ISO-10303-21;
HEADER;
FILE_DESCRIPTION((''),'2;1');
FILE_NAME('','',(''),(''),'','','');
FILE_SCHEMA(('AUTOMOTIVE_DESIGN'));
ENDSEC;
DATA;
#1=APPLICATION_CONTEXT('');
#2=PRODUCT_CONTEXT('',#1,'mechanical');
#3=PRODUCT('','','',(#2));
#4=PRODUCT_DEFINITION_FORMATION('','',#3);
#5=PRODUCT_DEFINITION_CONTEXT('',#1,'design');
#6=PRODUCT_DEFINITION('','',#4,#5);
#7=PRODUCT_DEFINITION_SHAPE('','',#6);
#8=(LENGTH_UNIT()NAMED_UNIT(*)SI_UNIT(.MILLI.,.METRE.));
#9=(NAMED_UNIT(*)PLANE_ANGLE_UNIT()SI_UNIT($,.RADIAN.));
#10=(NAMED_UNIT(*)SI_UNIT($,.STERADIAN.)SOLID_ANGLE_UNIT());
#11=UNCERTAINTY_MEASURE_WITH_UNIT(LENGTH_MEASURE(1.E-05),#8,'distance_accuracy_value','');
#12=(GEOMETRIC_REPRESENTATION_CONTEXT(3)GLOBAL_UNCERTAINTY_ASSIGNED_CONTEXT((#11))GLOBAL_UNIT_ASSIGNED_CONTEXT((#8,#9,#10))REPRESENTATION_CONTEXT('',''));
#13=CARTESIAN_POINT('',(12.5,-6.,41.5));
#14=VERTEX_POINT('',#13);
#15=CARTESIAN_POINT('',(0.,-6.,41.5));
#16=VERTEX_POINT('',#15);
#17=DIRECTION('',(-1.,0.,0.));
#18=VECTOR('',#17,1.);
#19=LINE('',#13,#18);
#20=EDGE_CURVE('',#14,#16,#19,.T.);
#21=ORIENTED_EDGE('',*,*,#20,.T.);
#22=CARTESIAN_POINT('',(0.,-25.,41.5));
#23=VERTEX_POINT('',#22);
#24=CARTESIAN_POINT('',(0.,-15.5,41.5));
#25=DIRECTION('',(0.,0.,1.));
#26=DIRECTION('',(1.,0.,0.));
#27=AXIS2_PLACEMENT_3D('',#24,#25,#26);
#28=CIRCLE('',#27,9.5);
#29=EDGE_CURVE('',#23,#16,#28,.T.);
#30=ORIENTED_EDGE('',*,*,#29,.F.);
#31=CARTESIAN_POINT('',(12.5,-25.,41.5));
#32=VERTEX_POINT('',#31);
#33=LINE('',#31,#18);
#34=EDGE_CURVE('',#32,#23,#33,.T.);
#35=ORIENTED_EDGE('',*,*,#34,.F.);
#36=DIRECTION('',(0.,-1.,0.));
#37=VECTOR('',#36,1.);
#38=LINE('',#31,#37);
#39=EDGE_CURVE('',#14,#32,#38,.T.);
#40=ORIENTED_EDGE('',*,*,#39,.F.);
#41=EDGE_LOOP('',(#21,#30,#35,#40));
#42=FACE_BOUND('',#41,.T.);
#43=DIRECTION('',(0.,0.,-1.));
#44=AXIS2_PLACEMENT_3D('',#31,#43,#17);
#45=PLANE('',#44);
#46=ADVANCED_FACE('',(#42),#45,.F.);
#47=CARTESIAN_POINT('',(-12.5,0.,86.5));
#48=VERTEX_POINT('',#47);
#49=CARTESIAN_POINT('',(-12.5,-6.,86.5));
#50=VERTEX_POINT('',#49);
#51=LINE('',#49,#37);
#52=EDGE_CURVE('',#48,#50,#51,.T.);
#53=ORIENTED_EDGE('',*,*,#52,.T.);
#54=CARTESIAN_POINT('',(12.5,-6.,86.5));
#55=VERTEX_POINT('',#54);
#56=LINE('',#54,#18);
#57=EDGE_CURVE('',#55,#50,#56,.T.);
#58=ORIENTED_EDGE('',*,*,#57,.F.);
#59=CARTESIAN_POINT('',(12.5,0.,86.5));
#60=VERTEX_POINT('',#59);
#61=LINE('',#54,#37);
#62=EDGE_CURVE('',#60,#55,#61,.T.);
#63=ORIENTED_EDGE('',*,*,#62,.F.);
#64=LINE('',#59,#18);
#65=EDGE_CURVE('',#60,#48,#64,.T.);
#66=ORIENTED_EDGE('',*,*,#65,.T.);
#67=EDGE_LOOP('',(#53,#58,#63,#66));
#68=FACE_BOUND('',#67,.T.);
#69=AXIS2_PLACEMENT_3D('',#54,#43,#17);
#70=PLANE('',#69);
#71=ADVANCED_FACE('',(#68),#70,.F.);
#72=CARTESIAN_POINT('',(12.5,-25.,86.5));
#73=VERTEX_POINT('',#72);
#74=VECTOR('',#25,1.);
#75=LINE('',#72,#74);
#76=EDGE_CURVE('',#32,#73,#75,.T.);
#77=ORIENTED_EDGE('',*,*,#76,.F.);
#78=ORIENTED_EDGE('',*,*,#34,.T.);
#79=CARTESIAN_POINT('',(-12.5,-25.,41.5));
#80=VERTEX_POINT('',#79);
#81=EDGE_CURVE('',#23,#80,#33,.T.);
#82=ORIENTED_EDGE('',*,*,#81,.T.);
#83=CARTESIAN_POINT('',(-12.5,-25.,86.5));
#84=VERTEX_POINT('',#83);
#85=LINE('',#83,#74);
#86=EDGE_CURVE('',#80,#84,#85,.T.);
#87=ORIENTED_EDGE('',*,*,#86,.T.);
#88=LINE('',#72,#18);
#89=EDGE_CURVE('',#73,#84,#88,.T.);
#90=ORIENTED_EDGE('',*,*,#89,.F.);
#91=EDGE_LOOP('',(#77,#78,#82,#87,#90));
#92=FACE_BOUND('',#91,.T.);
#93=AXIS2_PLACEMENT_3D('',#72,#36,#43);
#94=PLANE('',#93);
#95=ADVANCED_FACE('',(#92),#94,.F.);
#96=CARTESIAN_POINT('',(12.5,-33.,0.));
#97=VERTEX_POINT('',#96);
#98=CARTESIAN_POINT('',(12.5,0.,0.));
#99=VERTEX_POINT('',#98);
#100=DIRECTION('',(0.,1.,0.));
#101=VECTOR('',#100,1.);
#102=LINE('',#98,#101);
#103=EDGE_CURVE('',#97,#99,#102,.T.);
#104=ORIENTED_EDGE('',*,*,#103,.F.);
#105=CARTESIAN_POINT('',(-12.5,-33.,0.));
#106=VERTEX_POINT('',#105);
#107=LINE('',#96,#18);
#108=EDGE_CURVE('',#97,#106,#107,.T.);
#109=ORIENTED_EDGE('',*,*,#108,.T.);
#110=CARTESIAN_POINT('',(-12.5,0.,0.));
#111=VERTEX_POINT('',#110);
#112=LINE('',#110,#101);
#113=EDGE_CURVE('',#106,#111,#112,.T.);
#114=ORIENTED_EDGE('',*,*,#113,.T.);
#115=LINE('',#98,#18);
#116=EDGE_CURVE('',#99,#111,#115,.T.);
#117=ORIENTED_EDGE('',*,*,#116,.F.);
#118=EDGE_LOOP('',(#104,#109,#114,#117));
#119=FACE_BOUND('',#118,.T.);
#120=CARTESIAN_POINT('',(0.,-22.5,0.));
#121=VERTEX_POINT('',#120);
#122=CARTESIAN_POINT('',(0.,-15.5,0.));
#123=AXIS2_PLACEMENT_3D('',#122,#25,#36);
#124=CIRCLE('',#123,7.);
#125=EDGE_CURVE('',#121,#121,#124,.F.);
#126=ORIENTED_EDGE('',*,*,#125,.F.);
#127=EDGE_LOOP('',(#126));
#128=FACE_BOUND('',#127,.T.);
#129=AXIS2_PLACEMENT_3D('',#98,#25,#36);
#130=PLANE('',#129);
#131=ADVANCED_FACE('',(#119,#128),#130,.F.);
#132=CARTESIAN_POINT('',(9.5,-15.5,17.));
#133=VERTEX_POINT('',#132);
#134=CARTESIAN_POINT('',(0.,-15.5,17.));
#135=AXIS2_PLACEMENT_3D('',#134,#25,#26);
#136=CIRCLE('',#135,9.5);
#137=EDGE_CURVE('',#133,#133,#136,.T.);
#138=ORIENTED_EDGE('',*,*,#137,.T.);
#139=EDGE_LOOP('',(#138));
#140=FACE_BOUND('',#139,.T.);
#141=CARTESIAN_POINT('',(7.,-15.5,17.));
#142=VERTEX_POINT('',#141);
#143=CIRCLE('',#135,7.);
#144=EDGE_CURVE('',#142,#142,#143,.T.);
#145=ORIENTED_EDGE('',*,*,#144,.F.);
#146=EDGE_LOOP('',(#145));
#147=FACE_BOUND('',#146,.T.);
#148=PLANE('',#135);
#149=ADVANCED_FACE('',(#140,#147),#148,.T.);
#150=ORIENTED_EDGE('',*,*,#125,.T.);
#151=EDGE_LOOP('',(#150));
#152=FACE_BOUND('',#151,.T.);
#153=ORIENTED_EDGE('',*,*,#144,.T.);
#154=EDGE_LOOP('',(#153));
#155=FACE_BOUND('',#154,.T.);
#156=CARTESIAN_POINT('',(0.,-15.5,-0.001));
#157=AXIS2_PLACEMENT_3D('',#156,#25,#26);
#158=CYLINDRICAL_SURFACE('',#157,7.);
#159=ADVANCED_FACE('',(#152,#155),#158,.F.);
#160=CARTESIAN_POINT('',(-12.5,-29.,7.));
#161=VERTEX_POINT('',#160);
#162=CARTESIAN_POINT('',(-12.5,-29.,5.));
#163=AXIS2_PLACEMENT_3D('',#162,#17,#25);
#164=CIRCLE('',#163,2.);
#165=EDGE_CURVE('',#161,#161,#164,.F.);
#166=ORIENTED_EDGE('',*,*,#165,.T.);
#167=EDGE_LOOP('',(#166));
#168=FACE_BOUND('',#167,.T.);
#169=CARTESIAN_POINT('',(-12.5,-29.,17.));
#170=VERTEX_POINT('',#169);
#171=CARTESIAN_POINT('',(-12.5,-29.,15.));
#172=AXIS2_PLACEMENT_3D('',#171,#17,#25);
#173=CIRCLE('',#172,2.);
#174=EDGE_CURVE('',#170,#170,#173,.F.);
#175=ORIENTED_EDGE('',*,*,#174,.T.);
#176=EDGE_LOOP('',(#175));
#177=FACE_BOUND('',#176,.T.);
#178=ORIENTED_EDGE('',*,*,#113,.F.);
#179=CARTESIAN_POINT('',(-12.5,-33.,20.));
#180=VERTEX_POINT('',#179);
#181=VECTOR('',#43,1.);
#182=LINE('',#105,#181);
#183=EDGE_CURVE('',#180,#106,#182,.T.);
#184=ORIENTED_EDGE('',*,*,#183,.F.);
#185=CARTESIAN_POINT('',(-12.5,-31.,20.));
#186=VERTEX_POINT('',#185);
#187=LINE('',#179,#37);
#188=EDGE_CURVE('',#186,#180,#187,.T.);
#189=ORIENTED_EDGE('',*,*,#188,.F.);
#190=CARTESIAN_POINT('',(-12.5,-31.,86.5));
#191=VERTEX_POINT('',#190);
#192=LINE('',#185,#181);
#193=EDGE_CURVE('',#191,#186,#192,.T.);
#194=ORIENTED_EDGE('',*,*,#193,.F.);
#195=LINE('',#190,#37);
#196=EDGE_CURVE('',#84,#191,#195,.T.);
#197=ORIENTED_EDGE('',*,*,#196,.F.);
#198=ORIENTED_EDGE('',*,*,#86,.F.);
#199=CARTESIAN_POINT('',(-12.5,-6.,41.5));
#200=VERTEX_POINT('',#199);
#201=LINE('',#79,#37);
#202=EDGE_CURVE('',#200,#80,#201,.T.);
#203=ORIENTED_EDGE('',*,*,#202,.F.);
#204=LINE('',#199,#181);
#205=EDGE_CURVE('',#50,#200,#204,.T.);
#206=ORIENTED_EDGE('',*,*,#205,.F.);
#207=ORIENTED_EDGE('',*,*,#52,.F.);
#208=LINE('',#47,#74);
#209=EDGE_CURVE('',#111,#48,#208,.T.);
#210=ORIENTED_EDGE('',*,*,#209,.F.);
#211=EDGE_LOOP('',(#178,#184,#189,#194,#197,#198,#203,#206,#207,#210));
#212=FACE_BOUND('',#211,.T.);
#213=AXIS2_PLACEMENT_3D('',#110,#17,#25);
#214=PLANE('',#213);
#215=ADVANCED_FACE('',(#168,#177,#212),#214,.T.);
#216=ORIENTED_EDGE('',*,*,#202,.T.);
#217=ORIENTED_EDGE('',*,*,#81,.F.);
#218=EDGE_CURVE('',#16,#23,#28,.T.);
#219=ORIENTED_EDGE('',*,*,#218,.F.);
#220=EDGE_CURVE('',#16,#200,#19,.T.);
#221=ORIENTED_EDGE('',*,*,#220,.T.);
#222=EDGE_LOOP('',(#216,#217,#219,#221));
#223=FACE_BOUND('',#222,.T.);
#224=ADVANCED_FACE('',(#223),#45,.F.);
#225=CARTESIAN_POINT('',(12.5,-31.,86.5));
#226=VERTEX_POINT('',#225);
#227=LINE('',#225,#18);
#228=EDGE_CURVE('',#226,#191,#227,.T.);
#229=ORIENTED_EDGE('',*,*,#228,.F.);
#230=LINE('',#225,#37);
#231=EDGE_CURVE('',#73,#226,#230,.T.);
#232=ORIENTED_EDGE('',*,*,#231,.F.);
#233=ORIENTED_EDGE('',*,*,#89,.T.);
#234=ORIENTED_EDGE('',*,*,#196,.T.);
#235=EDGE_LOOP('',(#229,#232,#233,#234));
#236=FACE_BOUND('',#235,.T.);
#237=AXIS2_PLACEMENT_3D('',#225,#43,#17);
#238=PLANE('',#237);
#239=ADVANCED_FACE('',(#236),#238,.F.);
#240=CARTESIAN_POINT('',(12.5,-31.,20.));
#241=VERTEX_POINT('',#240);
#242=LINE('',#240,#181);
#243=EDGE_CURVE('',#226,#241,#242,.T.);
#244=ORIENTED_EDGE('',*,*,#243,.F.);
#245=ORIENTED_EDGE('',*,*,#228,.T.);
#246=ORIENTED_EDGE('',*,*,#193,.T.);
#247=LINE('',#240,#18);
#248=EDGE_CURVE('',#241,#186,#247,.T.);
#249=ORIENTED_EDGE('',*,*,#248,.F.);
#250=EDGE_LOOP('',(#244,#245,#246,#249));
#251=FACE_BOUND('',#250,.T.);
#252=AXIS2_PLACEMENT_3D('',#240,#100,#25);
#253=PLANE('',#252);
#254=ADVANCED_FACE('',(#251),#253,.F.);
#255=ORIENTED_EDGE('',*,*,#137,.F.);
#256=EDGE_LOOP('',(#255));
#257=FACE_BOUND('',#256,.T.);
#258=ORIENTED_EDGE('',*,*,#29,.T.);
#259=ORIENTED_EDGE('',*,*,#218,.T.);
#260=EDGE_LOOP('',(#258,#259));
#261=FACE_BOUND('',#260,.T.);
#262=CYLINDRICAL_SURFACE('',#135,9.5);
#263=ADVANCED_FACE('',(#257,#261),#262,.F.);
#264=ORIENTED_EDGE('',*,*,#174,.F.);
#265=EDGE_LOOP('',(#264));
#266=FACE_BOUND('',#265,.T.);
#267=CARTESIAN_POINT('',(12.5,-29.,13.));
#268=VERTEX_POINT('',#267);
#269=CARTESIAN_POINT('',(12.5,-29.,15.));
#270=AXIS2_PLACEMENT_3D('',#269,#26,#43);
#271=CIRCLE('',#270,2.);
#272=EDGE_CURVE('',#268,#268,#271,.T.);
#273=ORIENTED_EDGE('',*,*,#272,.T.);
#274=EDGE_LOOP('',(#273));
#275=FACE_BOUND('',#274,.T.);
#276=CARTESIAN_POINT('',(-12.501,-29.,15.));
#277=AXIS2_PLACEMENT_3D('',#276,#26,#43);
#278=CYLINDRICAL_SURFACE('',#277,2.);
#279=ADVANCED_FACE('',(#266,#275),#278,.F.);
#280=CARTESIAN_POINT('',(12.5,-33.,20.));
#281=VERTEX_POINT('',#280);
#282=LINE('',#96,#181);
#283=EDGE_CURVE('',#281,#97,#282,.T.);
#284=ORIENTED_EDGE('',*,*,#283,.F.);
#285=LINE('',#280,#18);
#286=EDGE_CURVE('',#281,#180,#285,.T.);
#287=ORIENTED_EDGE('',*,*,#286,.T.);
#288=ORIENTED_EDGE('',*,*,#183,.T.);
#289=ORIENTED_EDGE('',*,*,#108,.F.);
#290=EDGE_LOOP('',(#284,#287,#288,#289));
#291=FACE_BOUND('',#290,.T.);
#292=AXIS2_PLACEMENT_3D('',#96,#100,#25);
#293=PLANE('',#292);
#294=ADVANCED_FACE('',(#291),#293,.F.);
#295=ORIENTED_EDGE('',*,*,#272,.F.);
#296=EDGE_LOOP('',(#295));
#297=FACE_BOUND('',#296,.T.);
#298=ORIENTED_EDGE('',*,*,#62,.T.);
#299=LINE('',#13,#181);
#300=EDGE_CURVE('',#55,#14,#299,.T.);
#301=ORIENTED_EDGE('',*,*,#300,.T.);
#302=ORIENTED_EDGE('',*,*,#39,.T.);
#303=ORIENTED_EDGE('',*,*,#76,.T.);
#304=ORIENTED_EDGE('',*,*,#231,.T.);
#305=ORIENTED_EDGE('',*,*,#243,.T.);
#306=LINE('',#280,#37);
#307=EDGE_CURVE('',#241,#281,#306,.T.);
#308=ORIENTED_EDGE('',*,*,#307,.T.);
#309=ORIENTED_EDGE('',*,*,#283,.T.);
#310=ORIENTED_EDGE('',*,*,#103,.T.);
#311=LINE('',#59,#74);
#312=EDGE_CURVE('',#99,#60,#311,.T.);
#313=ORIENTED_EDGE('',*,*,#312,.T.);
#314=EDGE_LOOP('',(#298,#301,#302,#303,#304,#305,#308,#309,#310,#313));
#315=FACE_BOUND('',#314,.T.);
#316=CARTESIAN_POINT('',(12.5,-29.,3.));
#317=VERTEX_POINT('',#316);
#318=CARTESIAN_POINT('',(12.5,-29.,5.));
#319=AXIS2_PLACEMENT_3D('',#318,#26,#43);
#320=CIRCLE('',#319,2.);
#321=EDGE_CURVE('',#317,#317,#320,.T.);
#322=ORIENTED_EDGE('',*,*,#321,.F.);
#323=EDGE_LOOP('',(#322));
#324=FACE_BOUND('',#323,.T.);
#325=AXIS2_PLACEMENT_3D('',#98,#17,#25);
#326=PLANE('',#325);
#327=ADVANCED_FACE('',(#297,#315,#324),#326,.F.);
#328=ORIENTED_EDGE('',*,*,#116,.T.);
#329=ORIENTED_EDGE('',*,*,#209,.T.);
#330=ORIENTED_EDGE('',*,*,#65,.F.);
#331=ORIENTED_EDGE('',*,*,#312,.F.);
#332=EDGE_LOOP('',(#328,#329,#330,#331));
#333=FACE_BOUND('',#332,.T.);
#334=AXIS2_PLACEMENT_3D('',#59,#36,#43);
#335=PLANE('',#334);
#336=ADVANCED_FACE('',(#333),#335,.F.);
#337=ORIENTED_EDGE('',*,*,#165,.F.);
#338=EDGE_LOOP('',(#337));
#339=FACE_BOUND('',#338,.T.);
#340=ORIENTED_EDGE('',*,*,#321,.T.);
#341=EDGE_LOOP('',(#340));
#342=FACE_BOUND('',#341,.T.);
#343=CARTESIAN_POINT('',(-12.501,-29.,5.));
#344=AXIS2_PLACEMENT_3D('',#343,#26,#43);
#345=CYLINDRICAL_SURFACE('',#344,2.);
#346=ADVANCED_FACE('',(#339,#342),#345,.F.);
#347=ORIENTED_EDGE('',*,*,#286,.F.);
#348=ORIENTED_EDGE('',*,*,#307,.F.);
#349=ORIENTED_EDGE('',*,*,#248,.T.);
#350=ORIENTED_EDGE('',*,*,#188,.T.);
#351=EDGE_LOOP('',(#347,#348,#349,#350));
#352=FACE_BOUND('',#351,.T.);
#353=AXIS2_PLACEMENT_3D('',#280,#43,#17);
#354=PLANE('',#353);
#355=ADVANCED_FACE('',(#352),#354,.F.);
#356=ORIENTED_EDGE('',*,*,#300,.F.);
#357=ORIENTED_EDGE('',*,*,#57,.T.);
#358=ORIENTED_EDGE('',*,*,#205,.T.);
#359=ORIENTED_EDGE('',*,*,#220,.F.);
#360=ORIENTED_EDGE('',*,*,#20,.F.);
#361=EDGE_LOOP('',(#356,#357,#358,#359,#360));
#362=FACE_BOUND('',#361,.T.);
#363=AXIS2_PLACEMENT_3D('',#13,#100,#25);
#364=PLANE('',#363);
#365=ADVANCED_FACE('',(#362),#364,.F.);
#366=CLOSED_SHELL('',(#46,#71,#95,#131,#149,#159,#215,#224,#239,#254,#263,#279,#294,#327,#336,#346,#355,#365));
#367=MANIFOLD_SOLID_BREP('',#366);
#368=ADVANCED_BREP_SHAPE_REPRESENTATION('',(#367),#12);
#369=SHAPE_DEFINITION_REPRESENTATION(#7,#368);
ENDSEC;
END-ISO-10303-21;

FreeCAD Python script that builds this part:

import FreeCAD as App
import Part
import Sketcher

V = App.Vector
Q = App.Units.Quantity


def add_polygon(sketch, points):
    """Adds a closed chain of lines whose ends are joined by coincident constraints."""
    first, n = sketch.GeometryCount, len(points)
    for a, b in zip(points, points[1:] + points[:1]):
        sketch.addGeometry(Part.LineSegment(App.Vector(*a, 0), App.Vector(*b, 0)), False)
    for i in range(n):
        sketch.addConstraint(Sketcher.Constraint("Coincident", first + i, 2, first + (i + 1) % n, 1))

doc = App.newDocument("Part")
body = doc.addObject("PartDesign::Body", "Body")

# Sketch on YZ plane
sketch1 = body.newObject("Sketcher::SketchObject", "Sketch")
sketch1.AttachmentSupport = (doc.getObject("YZ_Plane"), [""])
sketch1.MapMode = "FlatFace"
add_polygon(sketch1, [(-33, 0), (0, 0), (0, 86.5), (-6, 86.5), (-6, 41.5), (-25, 41.5), (-25, 86.5), (-31, 86.5), (-31, 20), (-33, 20)])  # lines 0-9
sketch1.addConstraint([
    Sketcher.Constraint("Horizontal", 0),
    Sketcher.Constraint("Vertical", 1),
    Sketcher.Constraint("Horizontal", 2),
    Sketcher.Constraint("Vertical", 3),
    Sketcher.Constraint("Horizontal", 4),
    Sketcher.Constraint("Vertical", 5),
    Sketcher.Constraint("Horizontal", 6),
    Sketcher.Constraint("Vertical", 7),
    Sketcher.Constraint("Horizontal", 8),
    Sketcher.Constraint("Vertical", 9),
    Sketcher.Constraint("Coincident", 0, 2, -1, 1),
    Sketcher.Constraint("Horizontal", 2, 2, 5, 2),
    Sketcher.Constraint("Equal", 2, 6),
    Sketcher.Constraint("DistanceX", 0, 1, 0, 2, Q("33 mm")),
    Sketcher.Constraint("DistanceX", 2, 2, 2, 1, Q("6 mm")),
    Sketcher.Constraint("DistanceX", 4, 2, 4, 1, Q("19 mm")),
    Sketcher.Constraint("DistanceY", 3, 2, 3, 1, Q("45 mm")),
    Sketcher.Constraint("DistanceY", 9, 2, 9, 1, Q("20 mm")),
    Sketcher.Constraint("DistanceY", 1, 1, 1, 2, Q("86.5 mm")),
])
pad1 = body.newObject("PartDesign::Pad", "Pad")
pad1.Profile = sketch1
pad1.Length = 25
pad1.Midplane = True

# Sketch on XY plane
sketch2 = body.newObject("Sketcher::SketchObject", "Sketch001")
sketch2.AttachmentSupport = (doc.getObject("XY_Plane"), [""])
sketch2.MapMode = "FlatFace"
sketch2.AttachmentOffset = App.Placement(V(0, 0, 41.5), App.Rotation())
sketch2.addGeometry(Part.Circle(V(0, -16, 0), V(0, 0, 1), 10), False)
sketch2.addConstraint([
    Sketcher.Constraint("PointOnObject", 0, 3, -2),
    Sketcher.Constraint("Diameter", 0, Q("19 mm")),
    Sketcher.Constraint("DistanceY", 0, 3, -1, 1, Q("15.5 mm")),
])
pocket1 = body.newObject("PartDesign::Pocket", "Pocket")
pocket1.Profile = sketch2
pocket1.Length = 24.5

# Sketch on XY plane
sketch3 = body.newObject("Sketcher::SketchObject", "Sketch002")
sketch3.AttachmentSupport = (doc.getObject("XY_Plane"), [""])
sketch3.MapMode = "FlatFace"
sketch3.AttachmentOffset = App.Placement(V(0, 0, 17), App.Rotation())
sketch3.addGeometry(Part.Circle(V(0, -16, 0), V(0, 0, 1), 7), False)
sketch3.addConstraint([
    Sketcher.Constraint("PointOnObject", 0, 3, -2),
    Sketcher.Constraint("Diameter", 0, Q("14 mm")),
    Sketcher.Constraint("DistanceY", 0, 3, -1, 1, Q("15.5 mm")),
])
pocket2 = body.newObject("PartDesign::Pocket", "Pocket001")
pocket2.Profile = sketch3
pocket2.Type = "UpToFirst"

# Sketch on YZ plane
sketch4 = body.newObject("Sketcher::SketchObject", "Sketch003")
sketch4.AttachmentSupport = (doc.getObject("YZ_Plane"), [""])
sketch4.MapMode = "FlatFace"
sketch4.AttachmentOffset = App.Placement(V(0, 0, 12.5), App.Rotation())
sketch4.addGeometry(Part.Circle(V(-29, 15, 0), V(0, 0, 1), 2), False)
sketch4.addConstraint([
    Sketcher.Constraint("Diameter", 0, Q("4 mm")),
    Sketcher.Constraint("DistanceX", 0, 3, -1, 1, Q("29 mm")),
    Sketcher.Constraint("DistanceY", -1, 1, 0, 3, Q("15 mm")),
])
pocket3 = body.newObject("PartDesign::Pocket", "Pocket002")
pocket3.Profile = sketch4
pocket3.Type = "UpToFirst"

# Sketch on YZ plane
sketch5 = body.newObject("Sketcher::SketchObject", "Sketch004")
sketch5.AttachmentSupport = (doc.getObject("YZ_Plane"), [""])
sketch5.MapMode = "FlatFace"
sketch5.AttachmentOffset = App.Placement(V(0, 0, 12.5), App.Rotation())
sketch5.addGeometry(Part.Circle(V(-29, 5, 0), V(0, 0, 1), 2), False)
sketch5.addConstraint([
    Sketcher.Constraint("Diameter", 0, Q("4 mm")),
    Sketcher.Constraint("DistanceX", 0, 3, -1, 1, Q("29 mm")),
    Sketcher.Constraint("DistanceY", -1, 1, 0, 3, Q("5 mm")),
])
pocket4 = body.newObject("PartDesign::Pocket", "Pocket003")
pocket4.Profile = sketch5
pocket4.Type = "UpToFirst"

doc.recompute()
